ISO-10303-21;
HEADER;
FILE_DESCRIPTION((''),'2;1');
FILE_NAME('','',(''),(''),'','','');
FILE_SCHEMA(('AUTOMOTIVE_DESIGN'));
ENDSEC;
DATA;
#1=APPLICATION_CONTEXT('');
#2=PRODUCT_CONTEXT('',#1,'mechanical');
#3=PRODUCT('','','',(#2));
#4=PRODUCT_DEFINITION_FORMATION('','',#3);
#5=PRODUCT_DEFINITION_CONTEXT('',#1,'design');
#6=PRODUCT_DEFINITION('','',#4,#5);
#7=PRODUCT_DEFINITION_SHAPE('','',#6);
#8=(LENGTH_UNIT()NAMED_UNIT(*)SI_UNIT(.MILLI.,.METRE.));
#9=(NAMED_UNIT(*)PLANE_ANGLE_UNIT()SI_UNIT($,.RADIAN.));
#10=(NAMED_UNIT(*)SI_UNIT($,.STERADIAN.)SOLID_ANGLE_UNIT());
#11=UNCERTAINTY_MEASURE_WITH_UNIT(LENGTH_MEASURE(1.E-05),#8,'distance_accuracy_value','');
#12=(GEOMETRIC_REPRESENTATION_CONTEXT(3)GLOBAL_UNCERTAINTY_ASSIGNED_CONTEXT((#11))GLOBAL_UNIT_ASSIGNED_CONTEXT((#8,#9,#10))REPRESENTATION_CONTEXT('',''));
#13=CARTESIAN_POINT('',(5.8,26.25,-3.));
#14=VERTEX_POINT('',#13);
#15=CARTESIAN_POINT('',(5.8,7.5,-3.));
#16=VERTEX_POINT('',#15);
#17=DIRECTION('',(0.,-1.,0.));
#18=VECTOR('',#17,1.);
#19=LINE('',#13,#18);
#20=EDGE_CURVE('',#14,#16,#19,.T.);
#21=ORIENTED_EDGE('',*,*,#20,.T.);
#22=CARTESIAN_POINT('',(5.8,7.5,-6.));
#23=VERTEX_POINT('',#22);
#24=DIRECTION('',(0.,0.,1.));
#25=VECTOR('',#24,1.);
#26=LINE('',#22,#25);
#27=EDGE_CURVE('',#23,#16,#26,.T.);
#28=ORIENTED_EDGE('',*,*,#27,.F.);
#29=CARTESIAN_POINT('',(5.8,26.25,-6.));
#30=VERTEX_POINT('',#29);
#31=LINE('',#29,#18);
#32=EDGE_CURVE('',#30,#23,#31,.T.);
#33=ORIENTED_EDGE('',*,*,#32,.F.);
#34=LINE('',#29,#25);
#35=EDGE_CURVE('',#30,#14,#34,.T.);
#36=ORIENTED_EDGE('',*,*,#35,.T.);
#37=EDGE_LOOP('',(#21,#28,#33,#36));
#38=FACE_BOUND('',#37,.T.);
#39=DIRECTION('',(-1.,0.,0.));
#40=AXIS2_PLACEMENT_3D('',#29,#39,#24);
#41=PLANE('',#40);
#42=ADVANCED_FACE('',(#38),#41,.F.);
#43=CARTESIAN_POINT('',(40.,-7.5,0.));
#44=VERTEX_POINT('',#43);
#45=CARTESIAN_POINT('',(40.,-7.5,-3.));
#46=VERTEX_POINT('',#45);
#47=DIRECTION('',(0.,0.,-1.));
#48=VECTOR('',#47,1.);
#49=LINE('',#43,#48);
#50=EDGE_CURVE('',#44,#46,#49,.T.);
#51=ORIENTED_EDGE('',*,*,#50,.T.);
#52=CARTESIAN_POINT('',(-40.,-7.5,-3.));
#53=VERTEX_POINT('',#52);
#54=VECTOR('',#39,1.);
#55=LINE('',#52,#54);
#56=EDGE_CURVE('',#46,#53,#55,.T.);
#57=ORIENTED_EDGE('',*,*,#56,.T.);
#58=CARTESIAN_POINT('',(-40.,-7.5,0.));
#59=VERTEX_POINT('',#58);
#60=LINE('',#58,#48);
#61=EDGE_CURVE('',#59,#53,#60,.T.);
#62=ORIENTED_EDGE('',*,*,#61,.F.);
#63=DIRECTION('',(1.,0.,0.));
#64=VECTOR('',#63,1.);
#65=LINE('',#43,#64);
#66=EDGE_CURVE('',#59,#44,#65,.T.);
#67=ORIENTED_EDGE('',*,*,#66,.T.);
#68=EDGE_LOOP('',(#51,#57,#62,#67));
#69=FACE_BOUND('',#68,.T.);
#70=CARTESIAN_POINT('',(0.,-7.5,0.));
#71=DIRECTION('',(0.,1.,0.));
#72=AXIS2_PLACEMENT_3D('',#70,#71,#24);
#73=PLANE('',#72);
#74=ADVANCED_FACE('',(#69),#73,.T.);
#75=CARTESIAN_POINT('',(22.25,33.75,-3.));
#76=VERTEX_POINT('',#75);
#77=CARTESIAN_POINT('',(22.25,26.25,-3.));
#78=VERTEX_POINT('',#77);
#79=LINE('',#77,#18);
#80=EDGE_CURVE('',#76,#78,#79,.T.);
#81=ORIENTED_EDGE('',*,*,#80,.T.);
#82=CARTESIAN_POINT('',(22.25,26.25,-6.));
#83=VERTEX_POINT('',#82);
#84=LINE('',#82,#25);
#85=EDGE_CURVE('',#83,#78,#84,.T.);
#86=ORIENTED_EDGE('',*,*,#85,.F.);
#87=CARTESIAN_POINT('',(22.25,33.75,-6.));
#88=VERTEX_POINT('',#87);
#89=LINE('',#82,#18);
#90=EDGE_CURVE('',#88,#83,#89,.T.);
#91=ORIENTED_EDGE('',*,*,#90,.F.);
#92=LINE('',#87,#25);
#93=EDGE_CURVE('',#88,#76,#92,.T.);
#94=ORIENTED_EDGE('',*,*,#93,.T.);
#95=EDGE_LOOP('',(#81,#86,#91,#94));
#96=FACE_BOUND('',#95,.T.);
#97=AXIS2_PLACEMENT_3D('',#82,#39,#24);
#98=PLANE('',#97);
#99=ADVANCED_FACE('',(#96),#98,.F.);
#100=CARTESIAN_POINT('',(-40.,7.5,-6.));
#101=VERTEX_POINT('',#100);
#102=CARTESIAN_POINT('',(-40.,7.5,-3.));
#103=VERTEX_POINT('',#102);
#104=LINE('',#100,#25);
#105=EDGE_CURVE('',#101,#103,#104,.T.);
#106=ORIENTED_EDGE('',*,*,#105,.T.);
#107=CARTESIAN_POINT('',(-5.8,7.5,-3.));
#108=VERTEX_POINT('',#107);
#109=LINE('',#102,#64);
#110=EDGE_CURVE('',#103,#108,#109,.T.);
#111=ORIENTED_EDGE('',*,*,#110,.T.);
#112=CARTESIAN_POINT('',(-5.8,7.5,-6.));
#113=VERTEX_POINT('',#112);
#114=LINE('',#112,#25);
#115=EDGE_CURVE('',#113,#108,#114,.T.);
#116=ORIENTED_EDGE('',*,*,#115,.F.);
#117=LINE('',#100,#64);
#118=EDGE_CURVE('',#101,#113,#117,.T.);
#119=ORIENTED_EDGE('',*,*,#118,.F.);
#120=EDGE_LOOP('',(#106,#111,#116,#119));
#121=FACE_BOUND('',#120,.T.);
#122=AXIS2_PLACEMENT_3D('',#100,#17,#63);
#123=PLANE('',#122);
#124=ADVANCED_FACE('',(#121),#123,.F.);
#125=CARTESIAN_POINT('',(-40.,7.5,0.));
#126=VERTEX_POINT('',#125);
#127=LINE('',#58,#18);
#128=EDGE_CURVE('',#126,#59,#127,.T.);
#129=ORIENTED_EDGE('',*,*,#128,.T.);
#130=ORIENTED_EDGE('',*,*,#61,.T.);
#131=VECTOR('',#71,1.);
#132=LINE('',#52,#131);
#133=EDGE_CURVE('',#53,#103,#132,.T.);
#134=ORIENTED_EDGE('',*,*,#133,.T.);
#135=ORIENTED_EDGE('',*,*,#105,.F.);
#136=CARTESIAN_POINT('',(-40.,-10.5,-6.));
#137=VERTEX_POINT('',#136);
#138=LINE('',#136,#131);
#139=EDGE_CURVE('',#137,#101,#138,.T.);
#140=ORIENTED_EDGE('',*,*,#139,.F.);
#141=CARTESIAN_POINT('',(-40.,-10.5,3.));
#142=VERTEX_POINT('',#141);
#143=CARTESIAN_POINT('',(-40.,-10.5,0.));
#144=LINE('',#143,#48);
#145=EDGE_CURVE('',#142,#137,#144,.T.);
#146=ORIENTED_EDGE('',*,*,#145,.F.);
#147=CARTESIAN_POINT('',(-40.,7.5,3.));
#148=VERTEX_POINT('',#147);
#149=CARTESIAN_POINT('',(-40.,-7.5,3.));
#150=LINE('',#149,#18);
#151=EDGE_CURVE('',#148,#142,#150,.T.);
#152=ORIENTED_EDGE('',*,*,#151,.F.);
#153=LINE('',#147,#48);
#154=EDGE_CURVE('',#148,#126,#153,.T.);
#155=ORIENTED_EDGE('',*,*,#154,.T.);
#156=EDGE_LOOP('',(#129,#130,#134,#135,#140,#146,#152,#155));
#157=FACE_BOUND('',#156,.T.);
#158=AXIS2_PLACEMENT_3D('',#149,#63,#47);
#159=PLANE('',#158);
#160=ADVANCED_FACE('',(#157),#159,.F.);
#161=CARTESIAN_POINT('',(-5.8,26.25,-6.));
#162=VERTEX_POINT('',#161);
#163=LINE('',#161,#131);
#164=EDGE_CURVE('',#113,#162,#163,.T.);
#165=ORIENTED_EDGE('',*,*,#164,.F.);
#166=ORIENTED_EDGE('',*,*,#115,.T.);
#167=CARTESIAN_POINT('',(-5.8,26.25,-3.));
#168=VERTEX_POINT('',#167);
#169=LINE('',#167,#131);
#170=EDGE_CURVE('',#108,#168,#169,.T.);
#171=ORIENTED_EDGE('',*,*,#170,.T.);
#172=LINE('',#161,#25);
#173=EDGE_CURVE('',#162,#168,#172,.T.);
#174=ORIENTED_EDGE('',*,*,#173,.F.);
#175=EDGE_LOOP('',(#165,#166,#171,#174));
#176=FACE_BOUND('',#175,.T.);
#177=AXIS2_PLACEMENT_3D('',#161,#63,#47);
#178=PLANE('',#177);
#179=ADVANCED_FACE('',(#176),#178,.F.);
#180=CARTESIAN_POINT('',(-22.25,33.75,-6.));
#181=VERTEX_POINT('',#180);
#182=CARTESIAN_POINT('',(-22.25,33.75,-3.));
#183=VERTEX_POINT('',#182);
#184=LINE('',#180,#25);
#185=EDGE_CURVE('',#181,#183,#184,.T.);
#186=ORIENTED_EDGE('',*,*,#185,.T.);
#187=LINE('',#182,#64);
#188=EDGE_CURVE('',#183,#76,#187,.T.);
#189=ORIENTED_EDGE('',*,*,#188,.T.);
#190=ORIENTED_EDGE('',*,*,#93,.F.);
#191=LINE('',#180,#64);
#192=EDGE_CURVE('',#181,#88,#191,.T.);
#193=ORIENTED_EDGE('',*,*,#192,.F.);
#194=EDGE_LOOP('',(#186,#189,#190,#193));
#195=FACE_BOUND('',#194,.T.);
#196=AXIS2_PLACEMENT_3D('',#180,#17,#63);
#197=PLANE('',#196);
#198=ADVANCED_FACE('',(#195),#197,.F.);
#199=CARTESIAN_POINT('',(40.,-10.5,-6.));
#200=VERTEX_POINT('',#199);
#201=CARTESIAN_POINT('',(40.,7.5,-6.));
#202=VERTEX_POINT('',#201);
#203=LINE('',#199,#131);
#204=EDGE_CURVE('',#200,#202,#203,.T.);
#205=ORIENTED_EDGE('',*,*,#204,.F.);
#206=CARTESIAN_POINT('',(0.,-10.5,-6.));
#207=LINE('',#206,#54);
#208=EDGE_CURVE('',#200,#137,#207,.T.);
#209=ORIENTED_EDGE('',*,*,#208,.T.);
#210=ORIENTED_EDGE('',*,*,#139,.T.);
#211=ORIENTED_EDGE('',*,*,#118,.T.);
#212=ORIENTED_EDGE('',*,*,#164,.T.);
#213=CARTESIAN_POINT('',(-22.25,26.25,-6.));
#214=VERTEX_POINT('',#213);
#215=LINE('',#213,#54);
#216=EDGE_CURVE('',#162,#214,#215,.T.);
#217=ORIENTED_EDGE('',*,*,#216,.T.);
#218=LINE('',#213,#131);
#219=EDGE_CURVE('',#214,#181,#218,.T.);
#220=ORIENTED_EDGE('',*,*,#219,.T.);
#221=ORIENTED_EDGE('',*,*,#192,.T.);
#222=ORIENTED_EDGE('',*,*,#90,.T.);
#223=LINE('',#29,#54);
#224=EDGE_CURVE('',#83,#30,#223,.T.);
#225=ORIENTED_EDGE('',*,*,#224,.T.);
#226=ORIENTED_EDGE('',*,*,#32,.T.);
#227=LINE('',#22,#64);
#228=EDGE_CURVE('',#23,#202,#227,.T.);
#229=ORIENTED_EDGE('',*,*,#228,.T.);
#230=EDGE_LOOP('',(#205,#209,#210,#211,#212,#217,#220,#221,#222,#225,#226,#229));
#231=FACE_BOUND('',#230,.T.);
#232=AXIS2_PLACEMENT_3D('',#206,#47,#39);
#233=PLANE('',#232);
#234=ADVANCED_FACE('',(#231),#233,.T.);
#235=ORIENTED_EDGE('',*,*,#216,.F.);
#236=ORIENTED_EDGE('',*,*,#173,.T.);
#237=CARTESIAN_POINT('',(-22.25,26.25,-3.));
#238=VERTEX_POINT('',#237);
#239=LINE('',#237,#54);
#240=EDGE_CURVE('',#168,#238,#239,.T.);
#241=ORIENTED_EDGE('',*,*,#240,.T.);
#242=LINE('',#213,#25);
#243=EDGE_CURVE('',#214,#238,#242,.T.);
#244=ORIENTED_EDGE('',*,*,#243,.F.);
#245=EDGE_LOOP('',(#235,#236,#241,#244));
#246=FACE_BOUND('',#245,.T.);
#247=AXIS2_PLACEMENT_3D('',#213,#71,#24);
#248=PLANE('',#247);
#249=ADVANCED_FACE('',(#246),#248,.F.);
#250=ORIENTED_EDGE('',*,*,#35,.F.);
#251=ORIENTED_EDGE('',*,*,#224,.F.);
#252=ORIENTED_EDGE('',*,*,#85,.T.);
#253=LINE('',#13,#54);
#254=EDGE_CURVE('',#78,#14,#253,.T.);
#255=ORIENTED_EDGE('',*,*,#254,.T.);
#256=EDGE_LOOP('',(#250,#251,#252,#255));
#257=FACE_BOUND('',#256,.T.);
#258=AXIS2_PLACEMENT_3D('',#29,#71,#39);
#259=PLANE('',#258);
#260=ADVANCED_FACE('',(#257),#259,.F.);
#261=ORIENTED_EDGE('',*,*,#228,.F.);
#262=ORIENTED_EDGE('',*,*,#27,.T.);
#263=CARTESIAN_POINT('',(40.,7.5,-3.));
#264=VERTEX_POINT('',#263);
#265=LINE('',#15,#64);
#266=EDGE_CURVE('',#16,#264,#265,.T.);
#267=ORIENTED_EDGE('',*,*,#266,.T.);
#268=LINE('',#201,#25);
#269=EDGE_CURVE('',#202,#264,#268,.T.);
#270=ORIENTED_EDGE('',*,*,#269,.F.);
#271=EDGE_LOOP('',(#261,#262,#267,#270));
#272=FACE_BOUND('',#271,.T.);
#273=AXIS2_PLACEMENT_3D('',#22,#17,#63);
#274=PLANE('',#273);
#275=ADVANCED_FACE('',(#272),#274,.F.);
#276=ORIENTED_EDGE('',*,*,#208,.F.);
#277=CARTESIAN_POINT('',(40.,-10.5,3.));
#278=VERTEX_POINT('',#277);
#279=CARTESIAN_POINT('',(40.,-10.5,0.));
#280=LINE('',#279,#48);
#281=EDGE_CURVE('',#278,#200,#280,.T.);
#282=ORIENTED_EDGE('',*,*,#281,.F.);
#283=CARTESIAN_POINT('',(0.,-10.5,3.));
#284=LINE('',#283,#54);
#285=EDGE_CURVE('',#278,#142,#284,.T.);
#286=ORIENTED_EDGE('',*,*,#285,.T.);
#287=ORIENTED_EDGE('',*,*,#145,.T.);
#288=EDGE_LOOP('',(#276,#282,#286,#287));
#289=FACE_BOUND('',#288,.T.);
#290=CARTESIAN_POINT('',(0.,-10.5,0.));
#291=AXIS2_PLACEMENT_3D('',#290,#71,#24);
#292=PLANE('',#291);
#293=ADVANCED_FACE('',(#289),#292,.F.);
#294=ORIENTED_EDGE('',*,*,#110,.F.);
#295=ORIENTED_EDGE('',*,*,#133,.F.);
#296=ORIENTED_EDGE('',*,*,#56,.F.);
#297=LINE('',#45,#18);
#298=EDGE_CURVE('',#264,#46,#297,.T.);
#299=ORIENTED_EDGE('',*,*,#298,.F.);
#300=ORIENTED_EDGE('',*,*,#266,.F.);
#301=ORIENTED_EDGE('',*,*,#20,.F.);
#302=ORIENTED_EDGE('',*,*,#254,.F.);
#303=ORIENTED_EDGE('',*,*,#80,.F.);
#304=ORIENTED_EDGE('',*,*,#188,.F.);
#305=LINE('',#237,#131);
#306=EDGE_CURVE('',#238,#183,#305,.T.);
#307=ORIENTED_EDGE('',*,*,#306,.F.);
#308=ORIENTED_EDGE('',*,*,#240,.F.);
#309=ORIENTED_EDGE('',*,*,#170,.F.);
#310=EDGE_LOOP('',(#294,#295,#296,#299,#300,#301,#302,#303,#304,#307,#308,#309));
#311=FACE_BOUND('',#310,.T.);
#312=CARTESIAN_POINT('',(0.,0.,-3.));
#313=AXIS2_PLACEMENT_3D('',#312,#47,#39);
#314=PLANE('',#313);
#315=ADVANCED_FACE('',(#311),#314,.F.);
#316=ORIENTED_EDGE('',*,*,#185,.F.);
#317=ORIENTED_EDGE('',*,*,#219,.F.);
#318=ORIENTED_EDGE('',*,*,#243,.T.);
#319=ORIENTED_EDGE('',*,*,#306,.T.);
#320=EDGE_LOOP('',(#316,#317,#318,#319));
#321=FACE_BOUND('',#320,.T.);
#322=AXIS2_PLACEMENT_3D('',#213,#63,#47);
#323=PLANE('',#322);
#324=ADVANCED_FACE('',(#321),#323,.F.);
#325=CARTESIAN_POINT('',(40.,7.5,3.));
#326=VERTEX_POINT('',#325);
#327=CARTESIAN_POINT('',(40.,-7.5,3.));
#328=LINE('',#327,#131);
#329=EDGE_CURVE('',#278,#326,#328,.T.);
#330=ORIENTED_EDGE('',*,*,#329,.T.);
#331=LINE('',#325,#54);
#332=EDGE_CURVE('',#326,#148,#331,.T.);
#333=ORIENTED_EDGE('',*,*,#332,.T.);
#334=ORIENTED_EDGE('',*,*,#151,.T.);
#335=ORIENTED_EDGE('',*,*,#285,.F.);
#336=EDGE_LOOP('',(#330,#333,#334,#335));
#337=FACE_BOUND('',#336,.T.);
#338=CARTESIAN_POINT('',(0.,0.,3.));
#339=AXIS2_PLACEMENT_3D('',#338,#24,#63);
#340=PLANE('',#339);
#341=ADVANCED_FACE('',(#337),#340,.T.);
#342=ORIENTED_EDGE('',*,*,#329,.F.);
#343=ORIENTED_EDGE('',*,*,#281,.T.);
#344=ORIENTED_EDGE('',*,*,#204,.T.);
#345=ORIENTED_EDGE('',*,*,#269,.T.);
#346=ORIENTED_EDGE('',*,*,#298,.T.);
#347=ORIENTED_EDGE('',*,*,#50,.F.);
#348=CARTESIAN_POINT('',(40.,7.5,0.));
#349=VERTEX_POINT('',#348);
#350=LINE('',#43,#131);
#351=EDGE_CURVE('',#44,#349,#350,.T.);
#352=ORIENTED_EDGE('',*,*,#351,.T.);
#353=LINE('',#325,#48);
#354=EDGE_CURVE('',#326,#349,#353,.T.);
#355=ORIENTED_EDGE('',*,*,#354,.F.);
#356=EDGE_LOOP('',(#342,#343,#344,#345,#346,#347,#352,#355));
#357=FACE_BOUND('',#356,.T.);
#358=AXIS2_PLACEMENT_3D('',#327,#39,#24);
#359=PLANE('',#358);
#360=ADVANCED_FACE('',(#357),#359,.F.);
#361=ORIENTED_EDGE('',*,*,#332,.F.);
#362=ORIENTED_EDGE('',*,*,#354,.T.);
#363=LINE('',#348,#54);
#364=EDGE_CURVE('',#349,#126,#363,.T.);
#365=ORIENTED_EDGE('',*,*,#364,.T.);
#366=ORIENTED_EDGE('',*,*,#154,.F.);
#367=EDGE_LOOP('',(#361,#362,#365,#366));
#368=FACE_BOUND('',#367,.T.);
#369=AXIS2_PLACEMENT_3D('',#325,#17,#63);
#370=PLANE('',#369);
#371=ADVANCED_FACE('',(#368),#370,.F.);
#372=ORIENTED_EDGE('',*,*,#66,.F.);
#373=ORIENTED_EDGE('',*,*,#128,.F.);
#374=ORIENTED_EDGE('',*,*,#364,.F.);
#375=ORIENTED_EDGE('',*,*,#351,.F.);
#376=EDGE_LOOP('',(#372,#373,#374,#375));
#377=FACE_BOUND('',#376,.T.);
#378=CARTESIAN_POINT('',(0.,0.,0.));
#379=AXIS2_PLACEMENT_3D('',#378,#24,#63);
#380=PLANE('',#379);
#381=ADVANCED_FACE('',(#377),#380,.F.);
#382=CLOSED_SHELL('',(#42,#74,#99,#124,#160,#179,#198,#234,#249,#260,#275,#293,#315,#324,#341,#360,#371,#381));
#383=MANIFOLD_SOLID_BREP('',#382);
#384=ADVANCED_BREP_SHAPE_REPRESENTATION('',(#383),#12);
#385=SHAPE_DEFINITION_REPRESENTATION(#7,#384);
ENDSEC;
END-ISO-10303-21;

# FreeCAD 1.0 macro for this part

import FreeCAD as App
import Part
import Sketcher

V = App.Vector
Q = App.Units.Quantity


def add_polygon(sketch, points):
    """Adds a closed chain of lines whose ends are joined by coincident constraints."""
    first, n = sketch.GeometryCount, len(points)
    for a, b in zip(points, points[1:] + points[:1]):
        sketch.addGeometry(Part.LineSegment(App.Vector(*a, 0), App.Vector(*b, 0)), False)
    for i in range(n):
        sketch.addConstraint(Sketcher.Constraint("Coincident", first + i, 2, first + (i + 1) % n, 1))

doc = App.newDocument("Part")
params = doc.addObject("Spreadsheet::Sheet", "Params")
for row, (alias, value) in enumerate([
    ("sketch1_width", "80 mm"),
    ("sketch1_height", "15 mm"),
    ("pad1_length", "3 mm"),
    ("sketch2_width", "80 mm"),
    ("sketch2_height", "15 mm"),
    ("sketch2_width2", "34.2 mm"),
    ("sketch2_width3", "44.5 mm"),
    ("sketch2_height2", "7.5 mm"),
    ("pad2_length", "3 mm"),
    ("sketch3_width", "80 mm"),
    ("sketch3_height", "9 mm"),
    ("pad3_length", "3 mm"),
], start=1):
    params.set(f"A{row}", alias)
    params.set(f"B{row}", "=" + value)
    params.setAlias(f"B{row}", alias)

body = doc.addObject("PartDesign::Body", "Body")

# Sketch on XY plane
sketch1 = doc.addObject("Sketcher::SketchObject", "Sketch")
body.addObject(sketch1)
sketch1.AttachmentSupport = (doc.XY_Plane, [""])
sketch1.MapMode = "FlatFace"
add_polygon(sketch1, [(-40, 7.5), (-40, -7.5), (40, -7.5), (40, 7.5)])  # lines 0-3
sketch1.addConstraint([
    Sketcher.Constraint("Vertical", 0),
    Sketcher.Constraint("Horizontal", 1),
    Sketcher.Constraint("Vertical", 2),
    Sketcher.Constraint("Horizontal", 3),
    Sketcher.Constraint("Symmetric", 0, 2, 2, 2, -1, 1),
    Sketcher.Constraint("DistanceX", 1, 1, 1, 2, Q("80 mm")),
    Sketcher.Constraint("DistanceY", 0, 2, 0, 1, Q("15 mm")),
])
sketch1.setExpression("Constraints[9]", "Params.sketch1_width")
sketch1.setExpression("Constraints[10]", "Params.sketch1_height")
pad1 = doc.addObject("PartDesign::Pad", "Pad")
body.addObject(pad1)
pad1.Profile = sketch1
pad1.setExpression("Length", "Params.pad1_length")
body2 = doc.addObject("PartDesign::Body", "Body001")

# Sketch on XY plane
sketch2 = doc.addObject("Sketcher::SketchObject", "Sketch001")
body2.addObject(sketch2)
sketch2.AttachmentSupport = (doc.getObject("XY_Plane001"), [""])
sketch2.MapMode = "FlatFace"
sketch2.AttachmentOffset = App.Placement(V(0, 0, -3), App.Rotation())
add_polygon(sketch2, [(40, -7.5), (-40, -7.5), (-40, 7.5), (-5.8, 7.5), (-5.8, 26.25), (-22.25, 26.25), (-22.25, 33.75), (22.25, 33.75), (22.25, 26.25), (5.8, 26.25), (5.8, 7.5), (40, 7.5)])  # lines 0-11
sketch2.addConstraint([
    Sketcher.Constraint("Horizontal", 0),
    Sketcher.Constraint("Vertical", 1),
    Sketcher.Constraint("Horizontal", 2),
    Sketcher.Constraint("Vertical", 3),
    Sketcher.Constraint("Horizontal", 4),
    Sketcher.Constraint("Vertical", 5),
    Sketcher.Constraint("Horizontal", 6),
    Sketcher.Constraint("Vertical", 7),
    Sketcher.Constraint("Horizontal", 8),
    Sketcher.Constraint("Vertical", 9),
    Sketcher.Constraint("Horizontal", 10),
    Sketcher.Constraint("Vertical", 11),
    Sketcher.Constraint("Symmetric", 0, 2, 10, 2, -1, 1),
    Sketcher.Constraint("Symmetric", 4, 2, 7, 2, -2),
    Sketcher.Constraint("Symmetric", 2, 2, 9, 2, -2),
    Sketcher.Constraint("DistanceX", 0, 2, 0, 1, Q("80 mm")),
    Sketcher.Constraint("DistanceY", 1, 1, 1, 2, Q("15 mm")),
    Sketcher.Constraint("DistanceX", 2, 1, 2, 2, Q("34.2 mm")),
    Sketcher.Constraint("DistanceX", 6, 1, 6, 2, Q("44.5 mm")),
    Sketcher.Constraint("DistanceY", 5, 1, 5, 2, Q("7.5 mm")),
    Sketcher.Constraint("DistanceY", 3, 1, 3, 2, Q("18.75 mm")),
])
sketch2.setExpression("Constraints[27]", "Params.sketch2_width")
sketch2.setExpression("Constraints[28]", "Params.sketch2_height")
sketch2.setExpression("Constraints[29]", "Params.sketch2_width2")
sketch2.setExpression("Constraints[30]", "Params.sketch2_width3")
sketch2.setExpression("Constraints[31]", "Params.sketch2_height2")
pad2 = doc.addObject("PartDesign::Pad", "Pad001")
body2.addObject(pad2)
pad2.Profile = sketch2
pad2.setExpression("Length", "Params.pad2_length")
pad2.Reversed = True
body.AllowCompound = True
doc.recompute()

boolean = doc.addObject("PartDesign::Boolean", "Boolean")
body.addObject(boolean)
boolean.Type = "Fuse"
boolean.addObjects([body2])

# Sketch on XZ plane
sketch3 = doc.addObject("Sketcher::SketchObject", "Sketch002")
body.addObject(sketch3)
sketch3.AttachmentSupport = (doc.XZ_Plane, [""])
sketch3.MapMode = "FlatFace"
sketch3.AttachmentOffset = App.Placement(V(0, 0, 7.5), App.Rotation())
add_polygon(sketch3, [(-40, -6), (-40, 3), (40, 3), (40, -6)])  # lines 0-3
sketch3.addConstraint([
    Sketcher.Constraint("Vertical", 0),
    Sketcher.Constraint("Horizontal", 1),
    Sketcher.Constraint("Vertical", 2),
    Sketcher.Constraint("Horizontal", 3),
    Sketcher.Constraint("DistanceX", 1, 1, 1, 2, Q("80 mm")),
    Sketcher.Constraint("DistanceY", 0, 1, 0, 2, Q("9 mm")),
    Sketcher.Constraint("DistanceX", 0, 2, -1, 1, Q("40 mm")),
    Sketcher.Constraint("DistanceY", -1, 1, 0, 2, Q("3 mm")),
])
sketch3.setExpression("Constraints[8]", "Params.sketch3_width")
sketch3.setExpression("Constraints[9]", "Params.sketch3_height")
pad3 = doc.addObject("PartDesign::Pad", "Pad002")
body.addObject(pad3)
pad3.Profile = sketch3
pad3.setExpression("Length", "Params.pad3_length")

doc.recompute()
